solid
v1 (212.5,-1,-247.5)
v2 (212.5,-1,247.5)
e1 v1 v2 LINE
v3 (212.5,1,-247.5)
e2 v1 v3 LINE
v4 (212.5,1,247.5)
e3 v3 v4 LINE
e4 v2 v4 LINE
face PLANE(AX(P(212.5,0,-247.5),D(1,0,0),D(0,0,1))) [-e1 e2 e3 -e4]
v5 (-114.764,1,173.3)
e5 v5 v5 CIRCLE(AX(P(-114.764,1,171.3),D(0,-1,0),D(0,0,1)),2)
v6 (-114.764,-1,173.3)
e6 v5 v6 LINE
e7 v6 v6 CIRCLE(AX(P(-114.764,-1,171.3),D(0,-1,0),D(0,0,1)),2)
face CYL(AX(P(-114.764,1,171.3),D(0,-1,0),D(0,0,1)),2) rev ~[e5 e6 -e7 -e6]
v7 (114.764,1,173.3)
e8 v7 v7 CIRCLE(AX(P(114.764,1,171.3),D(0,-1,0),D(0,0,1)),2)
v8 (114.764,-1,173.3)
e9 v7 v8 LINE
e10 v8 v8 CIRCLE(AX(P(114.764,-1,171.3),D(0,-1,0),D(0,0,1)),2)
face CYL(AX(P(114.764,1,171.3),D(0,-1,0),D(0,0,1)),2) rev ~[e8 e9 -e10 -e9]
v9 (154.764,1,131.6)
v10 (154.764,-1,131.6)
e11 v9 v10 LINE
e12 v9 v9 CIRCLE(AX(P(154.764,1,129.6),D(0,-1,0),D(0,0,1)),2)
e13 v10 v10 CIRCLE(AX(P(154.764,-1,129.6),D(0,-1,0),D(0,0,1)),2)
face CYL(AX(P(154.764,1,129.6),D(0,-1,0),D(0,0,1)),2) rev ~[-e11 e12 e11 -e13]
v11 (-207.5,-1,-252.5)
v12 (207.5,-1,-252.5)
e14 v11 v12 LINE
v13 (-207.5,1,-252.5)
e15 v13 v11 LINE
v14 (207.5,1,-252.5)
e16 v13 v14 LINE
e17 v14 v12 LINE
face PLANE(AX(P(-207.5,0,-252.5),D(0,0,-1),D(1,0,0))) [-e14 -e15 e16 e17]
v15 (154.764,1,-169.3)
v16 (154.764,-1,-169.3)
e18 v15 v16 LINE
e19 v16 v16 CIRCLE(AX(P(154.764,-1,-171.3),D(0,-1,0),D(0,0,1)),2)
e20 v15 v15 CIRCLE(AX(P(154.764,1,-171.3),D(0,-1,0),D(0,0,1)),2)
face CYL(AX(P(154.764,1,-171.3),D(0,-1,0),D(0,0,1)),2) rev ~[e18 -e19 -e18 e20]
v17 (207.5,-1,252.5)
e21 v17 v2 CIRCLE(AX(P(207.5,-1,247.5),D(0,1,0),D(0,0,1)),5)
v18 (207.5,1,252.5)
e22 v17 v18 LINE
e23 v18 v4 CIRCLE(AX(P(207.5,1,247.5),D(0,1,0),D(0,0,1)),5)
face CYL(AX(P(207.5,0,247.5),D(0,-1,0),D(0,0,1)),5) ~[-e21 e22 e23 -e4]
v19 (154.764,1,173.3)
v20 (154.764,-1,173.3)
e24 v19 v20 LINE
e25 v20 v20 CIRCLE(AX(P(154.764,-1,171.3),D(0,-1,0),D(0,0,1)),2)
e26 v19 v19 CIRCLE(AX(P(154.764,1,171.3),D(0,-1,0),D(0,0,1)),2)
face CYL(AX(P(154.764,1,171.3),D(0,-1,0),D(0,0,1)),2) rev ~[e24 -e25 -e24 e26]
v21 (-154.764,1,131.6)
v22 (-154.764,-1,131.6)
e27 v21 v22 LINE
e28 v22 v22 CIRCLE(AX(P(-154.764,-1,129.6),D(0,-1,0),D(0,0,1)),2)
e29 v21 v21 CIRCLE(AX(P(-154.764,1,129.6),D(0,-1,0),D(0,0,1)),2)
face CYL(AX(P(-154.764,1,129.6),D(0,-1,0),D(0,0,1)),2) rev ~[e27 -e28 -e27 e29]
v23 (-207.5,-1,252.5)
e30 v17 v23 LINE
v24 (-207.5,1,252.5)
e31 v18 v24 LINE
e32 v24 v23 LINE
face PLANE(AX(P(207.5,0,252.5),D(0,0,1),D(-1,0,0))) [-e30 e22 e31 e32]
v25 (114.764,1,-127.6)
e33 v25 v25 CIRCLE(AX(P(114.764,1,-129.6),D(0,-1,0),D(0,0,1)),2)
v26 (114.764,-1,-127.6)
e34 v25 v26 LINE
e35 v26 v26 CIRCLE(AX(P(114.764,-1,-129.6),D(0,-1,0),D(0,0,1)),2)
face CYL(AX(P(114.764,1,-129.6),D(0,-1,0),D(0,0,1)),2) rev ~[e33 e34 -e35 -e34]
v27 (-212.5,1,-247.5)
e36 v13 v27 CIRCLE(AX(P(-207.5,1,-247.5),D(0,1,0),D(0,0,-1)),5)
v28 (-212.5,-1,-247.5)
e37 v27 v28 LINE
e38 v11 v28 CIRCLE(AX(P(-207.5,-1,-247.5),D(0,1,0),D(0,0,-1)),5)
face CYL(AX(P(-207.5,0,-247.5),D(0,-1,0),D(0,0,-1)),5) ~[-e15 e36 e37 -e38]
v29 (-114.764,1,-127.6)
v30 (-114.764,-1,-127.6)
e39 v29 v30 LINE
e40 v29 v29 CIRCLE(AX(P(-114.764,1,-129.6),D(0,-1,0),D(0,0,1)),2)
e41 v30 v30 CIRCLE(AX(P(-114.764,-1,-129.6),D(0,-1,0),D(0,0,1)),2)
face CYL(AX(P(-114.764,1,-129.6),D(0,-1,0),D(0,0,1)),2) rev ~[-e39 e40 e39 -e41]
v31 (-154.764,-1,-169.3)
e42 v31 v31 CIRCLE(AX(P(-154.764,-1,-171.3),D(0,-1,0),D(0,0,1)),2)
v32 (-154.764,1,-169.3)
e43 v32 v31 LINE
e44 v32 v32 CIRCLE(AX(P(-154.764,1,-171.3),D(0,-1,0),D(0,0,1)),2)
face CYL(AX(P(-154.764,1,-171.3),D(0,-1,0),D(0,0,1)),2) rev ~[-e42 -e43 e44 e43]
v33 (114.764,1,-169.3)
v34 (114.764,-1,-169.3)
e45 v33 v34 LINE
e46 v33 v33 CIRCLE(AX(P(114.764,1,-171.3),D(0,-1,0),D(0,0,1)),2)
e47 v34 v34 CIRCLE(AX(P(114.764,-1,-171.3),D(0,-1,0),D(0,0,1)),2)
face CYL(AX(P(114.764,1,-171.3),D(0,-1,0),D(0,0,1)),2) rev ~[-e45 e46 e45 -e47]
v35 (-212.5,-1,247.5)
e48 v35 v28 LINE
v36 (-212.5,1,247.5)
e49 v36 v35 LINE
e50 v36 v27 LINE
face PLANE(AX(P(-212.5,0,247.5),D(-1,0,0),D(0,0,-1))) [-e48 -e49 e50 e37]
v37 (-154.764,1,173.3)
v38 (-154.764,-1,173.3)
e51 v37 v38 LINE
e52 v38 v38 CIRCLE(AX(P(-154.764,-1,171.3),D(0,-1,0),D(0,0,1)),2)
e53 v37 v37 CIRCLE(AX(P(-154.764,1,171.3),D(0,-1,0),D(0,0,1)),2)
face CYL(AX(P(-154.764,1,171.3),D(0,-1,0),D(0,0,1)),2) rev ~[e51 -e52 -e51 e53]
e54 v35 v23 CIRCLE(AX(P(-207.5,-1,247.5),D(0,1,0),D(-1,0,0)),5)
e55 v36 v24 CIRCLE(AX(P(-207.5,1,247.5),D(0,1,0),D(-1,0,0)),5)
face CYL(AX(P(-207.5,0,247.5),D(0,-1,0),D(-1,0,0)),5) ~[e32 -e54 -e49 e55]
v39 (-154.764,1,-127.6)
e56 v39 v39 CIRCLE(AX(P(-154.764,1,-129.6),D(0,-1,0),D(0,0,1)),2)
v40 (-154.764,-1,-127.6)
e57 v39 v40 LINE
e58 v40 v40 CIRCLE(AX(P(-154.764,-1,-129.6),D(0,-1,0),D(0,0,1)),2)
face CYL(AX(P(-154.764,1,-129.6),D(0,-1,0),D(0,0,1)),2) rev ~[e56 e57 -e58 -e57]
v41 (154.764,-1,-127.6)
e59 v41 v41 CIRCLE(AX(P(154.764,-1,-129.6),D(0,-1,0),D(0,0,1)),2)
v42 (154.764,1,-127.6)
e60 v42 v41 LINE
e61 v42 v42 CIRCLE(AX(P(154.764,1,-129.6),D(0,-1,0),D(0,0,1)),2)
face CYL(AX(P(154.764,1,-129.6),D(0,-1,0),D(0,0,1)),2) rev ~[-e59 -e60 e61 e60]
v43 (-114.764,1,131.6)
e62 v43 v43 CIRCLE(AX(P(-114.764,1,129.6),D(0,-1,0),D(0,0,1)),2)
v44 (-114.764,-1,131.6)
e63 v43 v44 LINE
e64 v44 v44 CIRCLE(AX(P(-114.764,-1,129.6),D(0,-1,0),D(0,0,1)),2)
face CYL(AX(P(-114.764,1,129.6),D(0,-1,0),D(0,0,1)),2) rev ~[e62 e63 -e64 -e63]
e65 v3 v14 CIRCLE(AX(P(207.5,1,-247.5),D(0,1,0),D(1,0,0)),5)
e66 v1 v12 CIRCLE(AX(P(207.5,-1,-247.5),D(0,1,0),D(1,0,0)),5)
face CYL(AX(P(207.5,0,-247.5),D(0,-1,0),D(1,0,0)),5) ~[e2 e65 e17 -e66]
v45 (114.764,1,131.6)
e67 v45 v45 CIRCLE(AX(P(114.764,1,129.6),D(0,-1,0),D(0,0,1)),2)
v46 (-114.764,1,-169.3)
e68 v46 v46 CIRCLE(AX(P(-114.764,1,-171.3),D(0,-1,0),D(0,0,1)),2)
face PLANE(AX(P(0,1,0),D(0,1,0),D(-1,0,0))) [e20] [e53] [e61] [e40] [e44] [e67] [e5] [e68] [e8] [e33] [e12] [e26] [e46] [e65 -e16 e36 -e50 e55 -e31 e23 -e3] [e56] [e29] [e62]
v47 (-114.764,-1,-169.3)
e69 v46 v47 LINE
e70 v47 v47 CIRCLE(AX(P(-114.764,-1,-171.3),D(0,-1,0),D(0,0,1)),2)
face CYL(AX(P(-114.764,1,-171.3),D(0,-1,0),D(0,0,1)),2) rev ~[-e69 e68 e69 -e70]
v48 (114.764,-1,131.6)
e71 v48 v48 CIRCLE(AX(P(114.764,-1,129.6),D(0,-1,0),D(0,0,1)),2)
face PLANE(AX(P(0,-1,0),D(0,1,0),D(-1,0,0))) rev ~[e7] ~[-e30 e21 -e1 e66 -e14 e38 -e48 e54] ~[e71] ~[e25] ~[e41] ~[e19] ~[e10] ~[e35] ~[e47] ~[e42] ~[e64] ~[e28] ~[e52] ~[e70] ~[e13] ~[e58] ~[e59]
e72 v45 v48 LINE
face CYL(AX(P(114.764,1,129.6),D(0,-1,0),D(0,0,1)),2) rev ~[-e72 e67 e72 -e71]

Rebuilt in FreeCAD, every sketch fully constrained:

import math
import FreeCAD as App
import Part
import Sketcher
from FreeCAD import Vector
Q = App.Units.Quantity

doc = App.newDocument("Part")
body = doc.addObject("PartDesign::Body", "Body")

sketch1 = body.newObject("Sketcher::SketchObject", "Sketch")
sketch1.AttachmentSupport = (doc.getObject("XZ_Plane"), [""])
sketch1.MapMode = "FlatFace"
sketch1.addGeometry(Part.LineSegment(Vector(-208, 252, 0), Vector(208, 252, 0)), False)
sketch1.addGeometry(Part.ArcOfCircle(Part.Circle(Vector(208, 248, 0), Vector(0, 0, 1), 5), math.radians(0), math.radians(90)), False)
sketch1.addGeometry(Part.LineSegment(Vector(212, 248, 0), Vector(212, -248, 0)), False)
sketch1.addGeometry(Part.ArcOfCircle(Part.Circle(Vector(208, -248, 0), Vector(0, 0, 1), 5), math.radians(-90), math.radians(0)), False)
sketch1.addGeometry(Part.LineSegment(Vector(208, -252, 0), Vector(-208, -252, 0)), False)
sketch1.addGeometry(Part.ArcOfCircle(Part.Circle(Vector(-208, -248, 0), Vector(0, 0, 1), 5), math.radians(180), math.radians(270)), False)
sketch1.addGeometry(Part.LineSegment(Vector(-212, -248, 0), Vector(-212, 248, 0)), False)
sketch1.addGeometry(Part.ArcOfCircle(Part.Circle(Vector(-208, 248, 0), Vector(0, 0, 1), 5), math.radians(90), math.radians(180)), False)
sketch1.addConstraint(Sketcher.Constraint("Tangent", 0, 2, 1, 2))
sketch1.addConstraint(Sketcher.Constraint("Tangent", 1, 1, 2, 1))
sketch1.addConstraint(Sketcher.Constraint("Tangent", 2, 2, 3, 2))
sketch1.addConstraint(Sketcher.Constraint("Tangent", 3, 1, 4, 1))
sketch1.addConstraint(Sketcher.Constraint("Tangent", 4, 2, 5, 2))
sketch1.addConstraint(Sketcher.Constraint("Tangent", 5, 1, 6, 1))
sketch1.addConstraint(Sketcher.Constraint("Tangent", 6, 2, 7, 2))
sketch1.addConstraint(Sketcher.Constraint("Tangent", 7, 1, 0, 1))
sketch1.addConstraint(Sketcher.Constraint("Horizontal", 0))
sketch1.addConstraint(Sketcher.Constraint("Vertical", 2))
sketch1.addConstraint(Sketcher.Constraint("Horizontal", 4))
sketch1.addConstraint(Sketcher.Constraint("Vertical", 6))
sketch1.addConstraint(Sketcher.Constraint("Equal", 1, 3))
sketch1.addConstraint(Sketcher.Constraint("Equal", 3, 5))
sketch1.addConstraint(Sketcher.Constraint("Equal", 5, 7))
sketch1.addConstraint(Sketcher.Constraint("Symmetric", 1, 3, 5, 3, -1, 1))
sketch1.addConstraint(Sketcher.Constraint("Radius", 1, Q("5 mm")))
sketch1.addConstraint(Sketcher.Constraint("DistanceX", 5, 1, 2, 2, Q("425 mm")))
sketch1.addConstraint(Sketcher.Constraint("DistanceY", 2, 2, 2, 1, Q("495 mm")))
pad1 = body.newObject("PartDesign::Pad", "Pad")
pad1.Profile = sketch1
pad1.Length = 2
pad1.Midplane = True

sketch2 = body.newObject("Sketcher::SketchObject", "Sketch001")
sketch2.AttachmentSupport = (doc.getObject("XZ_Plane"), [""])
sketch2.MapMode = "FlatFace"
sketch2.AttachmentOffset = App.Placement(Vector(0, 0, -1), App.Rotation())
sketch2.addGeometry(Part.Circle(Vector(-154.8, 171.3, 0), Vector(0, 0, 1), 2), False)
sketch2.addGeometry(Part.Circle(Vector(-154.8, 129.6, 0), Vector(0, 0, 1), 2), False)
sketch2.addGeometry(Part.Circle(Vector(-114.8, 129.6, 0), Vector(0, 0, 1), 2), False)
sketch2.addGeometry(Part.Circle(Vector(-114.8, 171.3, 0), Vector(0, 0, 1), 2), False)
sketch2.addGeometry(Part.Circle(Vector(114.8, 171.3, 0), Vector(0, 0, 1), 2), False)
sketch2.addGeometry(Part.Circle(Vector(114.8, 129.6, 0), Vector(0, 0, 1), 2), False)
sketch2.addGeometry(Part.Circle(Vector(154.8, 171.3, 0), Vector(0, 0, 1), 2), False)
sketch2.addGeometry(Part.Circle(Vector(154.8, 129.6, 0), Vector(0, 0, 1), 2), False)
sketch2.addGeometry(Part.Circle(Vector(-154.8, -171.3, 0), Vector(0, 0, 1), 2), False)
sketch2.addGeometry(Part.Circle(Vector(-154.8, -129.6, 0), Vector(0, 0, 1), 2), False)
sketch2.addGeometry(Part.Circle(Vector(-114.8, -129.6, 0), Vector(0, 0, 1), 2), False)
sketch2.addGeometry(Part.Circle(Vector(-114.8, -171.3, 0), Vector(0, 0, 1), 2), False)
sketch2.addGeometry(Part.Circle(Vector(154.8, -171.3, 0), Vector(0, 0, 1), 2), False)
sketch2.addGeometry(Part.Circle(Vector(154.8, -129.6, 0), Vector(0, 0, 1), 2), False)
sketch2.addGeometry(Part.Circle(Vector(114.8, -129.6, 0), Vector(0, 0, 1), 2), False)
sketch2.addGeometry(Part.Circle(Vector(114.8, -171.3, 0), Vector(0, 0, 1), 2), False)
sketch2.addConstraint(Sketcher.Constraint("Equal", 0, 1))
sketch2.addConstraint(Sketcher.Constraint("Equal", 1, 2))
sketch2.addConstraint(Sketcher.Constraint("Equal", 2, 3))
sketch2.addConstraint(Sketcher.Constraint("Equal", 3, 4))
sketch2.addConstraint(Sketcher.Constraint("Equal", 4, 5))
sketch2.addConstraint(Sketcher.Constraint("Equal", 5, 6))
sketch2.addConstraint(Sketcher.Constraint("Equal", 6, 7))
sketch2.addConstraint(Sketcher.Constraint("Equal", 7, 8))
sketch2.addConstraint(Sketcher.Constraint("Equal", 8, 9))
sketch2.addConstraint(Sketcher.Constraint("Equal", 9, 10))
sketch2.addConstraint(Sketcher.Constraint("Equal", 10, 11))
sketch2.addConstraint(Sketcher.Constraint("Equal", 11, 12))
sketch2.addConstraint(Sketcher.Constraint("Equal", 12, 13))
sketch2.addConstraint(Sketcher.Constraint("Equal", 13, 14))
sketch2.addConstraint(Sketcher.Constraint("Equal", 14, 15))
sketch2.addConstraint(Sketcher.Constraint("Symmetric", 6, 3, 8, 3, -1, 1))
sketch2.addConstraint(Sketcher.Constraint("Symmetric", 7, 3, 9, 3, -1, 1))
sketch2.addConstraint(Sketcher.Constraint("Symmetric", 5, 3, 10, 3, -1, 1))
sketch2.addConstraint(Sketcher.Constraint("Symmetric", 4, 3, 11, 3, -1, 1))
sketch2.addConstraint(Sketcher.Constraint("Symmetric", 0, 3, 12, 3, -1, 1))
sketch2.addConstraint(Sketcher.Constraint("Symmetric", 1, 3, 13, 3, -1, 1))
sketch2.addConstraint(Sketcher.Constraint("Symmetric", 2, 3, 14, 3, -1, 1))
sketch2.addConstraint(Sketcher.Constraint("Symmetric", 3, 3, 15, 3, -1, 1))
sketch2.addConstraint(Sketcher.Constraint("Symmetric", 3, 3, 4, 3, -2))
sketch2.addConstraint(Sketcher.Constraint("Symmetric", 2, 3, 5, 3, -2))
sketch2.addConstraint(Sketcher.Constraint("Symmetric", 0, 3, 6, 3, -2))
sketch2.addConstraint(Sketcher.Constraint("Symmetric", 1, 3, 7, 3, -2))
sketch2.addConstraint(Sketcher.Constraint("Horizontal", 1, 3, 2, 3))
sketch2.addConstraint(Sketcher.Constraint("Horizontal", 0, 3, 3, 3))
sketch2.addConstraint(Sketcher.Constraint("Vertical", 0, 3, 1, 3))
sketch2.addConstraint(Sketcher.Constraint("Vertical", 2, 3, 3, 3))
sketch2.addConstraint(Sketcher.Constraint("Diameter", 0, Q("4 mm")))
sketch2.addConstraint(Sketcher.Constraint("DistanceX", 1, 3, 2, 3, Q("40 mm")))
sketch2.addConstraint(Sketcher.Constraint("DistanceY", -1, 1, 0, 3, Q("171.3 mm")))
sketch2.addConstraint(Sketcher.Constraint("DistanceY", -1, 1, 1, 3, Q("129.6 mm")))
sketch2.addConstraint(Sketcher.Constraint("DistanceX", 0, 3, -1, 1, Q("154.764 mm")))
doc.recompute()
hole = body.newObject("PartDesign::Hole", "Hole")
hole.Profile = sketch2
hole.ThreadType = "None"
hole.Diameter = 4
hole.DepthType = "ThroughAll"
hole.Reversed = True

doc.recompute()
